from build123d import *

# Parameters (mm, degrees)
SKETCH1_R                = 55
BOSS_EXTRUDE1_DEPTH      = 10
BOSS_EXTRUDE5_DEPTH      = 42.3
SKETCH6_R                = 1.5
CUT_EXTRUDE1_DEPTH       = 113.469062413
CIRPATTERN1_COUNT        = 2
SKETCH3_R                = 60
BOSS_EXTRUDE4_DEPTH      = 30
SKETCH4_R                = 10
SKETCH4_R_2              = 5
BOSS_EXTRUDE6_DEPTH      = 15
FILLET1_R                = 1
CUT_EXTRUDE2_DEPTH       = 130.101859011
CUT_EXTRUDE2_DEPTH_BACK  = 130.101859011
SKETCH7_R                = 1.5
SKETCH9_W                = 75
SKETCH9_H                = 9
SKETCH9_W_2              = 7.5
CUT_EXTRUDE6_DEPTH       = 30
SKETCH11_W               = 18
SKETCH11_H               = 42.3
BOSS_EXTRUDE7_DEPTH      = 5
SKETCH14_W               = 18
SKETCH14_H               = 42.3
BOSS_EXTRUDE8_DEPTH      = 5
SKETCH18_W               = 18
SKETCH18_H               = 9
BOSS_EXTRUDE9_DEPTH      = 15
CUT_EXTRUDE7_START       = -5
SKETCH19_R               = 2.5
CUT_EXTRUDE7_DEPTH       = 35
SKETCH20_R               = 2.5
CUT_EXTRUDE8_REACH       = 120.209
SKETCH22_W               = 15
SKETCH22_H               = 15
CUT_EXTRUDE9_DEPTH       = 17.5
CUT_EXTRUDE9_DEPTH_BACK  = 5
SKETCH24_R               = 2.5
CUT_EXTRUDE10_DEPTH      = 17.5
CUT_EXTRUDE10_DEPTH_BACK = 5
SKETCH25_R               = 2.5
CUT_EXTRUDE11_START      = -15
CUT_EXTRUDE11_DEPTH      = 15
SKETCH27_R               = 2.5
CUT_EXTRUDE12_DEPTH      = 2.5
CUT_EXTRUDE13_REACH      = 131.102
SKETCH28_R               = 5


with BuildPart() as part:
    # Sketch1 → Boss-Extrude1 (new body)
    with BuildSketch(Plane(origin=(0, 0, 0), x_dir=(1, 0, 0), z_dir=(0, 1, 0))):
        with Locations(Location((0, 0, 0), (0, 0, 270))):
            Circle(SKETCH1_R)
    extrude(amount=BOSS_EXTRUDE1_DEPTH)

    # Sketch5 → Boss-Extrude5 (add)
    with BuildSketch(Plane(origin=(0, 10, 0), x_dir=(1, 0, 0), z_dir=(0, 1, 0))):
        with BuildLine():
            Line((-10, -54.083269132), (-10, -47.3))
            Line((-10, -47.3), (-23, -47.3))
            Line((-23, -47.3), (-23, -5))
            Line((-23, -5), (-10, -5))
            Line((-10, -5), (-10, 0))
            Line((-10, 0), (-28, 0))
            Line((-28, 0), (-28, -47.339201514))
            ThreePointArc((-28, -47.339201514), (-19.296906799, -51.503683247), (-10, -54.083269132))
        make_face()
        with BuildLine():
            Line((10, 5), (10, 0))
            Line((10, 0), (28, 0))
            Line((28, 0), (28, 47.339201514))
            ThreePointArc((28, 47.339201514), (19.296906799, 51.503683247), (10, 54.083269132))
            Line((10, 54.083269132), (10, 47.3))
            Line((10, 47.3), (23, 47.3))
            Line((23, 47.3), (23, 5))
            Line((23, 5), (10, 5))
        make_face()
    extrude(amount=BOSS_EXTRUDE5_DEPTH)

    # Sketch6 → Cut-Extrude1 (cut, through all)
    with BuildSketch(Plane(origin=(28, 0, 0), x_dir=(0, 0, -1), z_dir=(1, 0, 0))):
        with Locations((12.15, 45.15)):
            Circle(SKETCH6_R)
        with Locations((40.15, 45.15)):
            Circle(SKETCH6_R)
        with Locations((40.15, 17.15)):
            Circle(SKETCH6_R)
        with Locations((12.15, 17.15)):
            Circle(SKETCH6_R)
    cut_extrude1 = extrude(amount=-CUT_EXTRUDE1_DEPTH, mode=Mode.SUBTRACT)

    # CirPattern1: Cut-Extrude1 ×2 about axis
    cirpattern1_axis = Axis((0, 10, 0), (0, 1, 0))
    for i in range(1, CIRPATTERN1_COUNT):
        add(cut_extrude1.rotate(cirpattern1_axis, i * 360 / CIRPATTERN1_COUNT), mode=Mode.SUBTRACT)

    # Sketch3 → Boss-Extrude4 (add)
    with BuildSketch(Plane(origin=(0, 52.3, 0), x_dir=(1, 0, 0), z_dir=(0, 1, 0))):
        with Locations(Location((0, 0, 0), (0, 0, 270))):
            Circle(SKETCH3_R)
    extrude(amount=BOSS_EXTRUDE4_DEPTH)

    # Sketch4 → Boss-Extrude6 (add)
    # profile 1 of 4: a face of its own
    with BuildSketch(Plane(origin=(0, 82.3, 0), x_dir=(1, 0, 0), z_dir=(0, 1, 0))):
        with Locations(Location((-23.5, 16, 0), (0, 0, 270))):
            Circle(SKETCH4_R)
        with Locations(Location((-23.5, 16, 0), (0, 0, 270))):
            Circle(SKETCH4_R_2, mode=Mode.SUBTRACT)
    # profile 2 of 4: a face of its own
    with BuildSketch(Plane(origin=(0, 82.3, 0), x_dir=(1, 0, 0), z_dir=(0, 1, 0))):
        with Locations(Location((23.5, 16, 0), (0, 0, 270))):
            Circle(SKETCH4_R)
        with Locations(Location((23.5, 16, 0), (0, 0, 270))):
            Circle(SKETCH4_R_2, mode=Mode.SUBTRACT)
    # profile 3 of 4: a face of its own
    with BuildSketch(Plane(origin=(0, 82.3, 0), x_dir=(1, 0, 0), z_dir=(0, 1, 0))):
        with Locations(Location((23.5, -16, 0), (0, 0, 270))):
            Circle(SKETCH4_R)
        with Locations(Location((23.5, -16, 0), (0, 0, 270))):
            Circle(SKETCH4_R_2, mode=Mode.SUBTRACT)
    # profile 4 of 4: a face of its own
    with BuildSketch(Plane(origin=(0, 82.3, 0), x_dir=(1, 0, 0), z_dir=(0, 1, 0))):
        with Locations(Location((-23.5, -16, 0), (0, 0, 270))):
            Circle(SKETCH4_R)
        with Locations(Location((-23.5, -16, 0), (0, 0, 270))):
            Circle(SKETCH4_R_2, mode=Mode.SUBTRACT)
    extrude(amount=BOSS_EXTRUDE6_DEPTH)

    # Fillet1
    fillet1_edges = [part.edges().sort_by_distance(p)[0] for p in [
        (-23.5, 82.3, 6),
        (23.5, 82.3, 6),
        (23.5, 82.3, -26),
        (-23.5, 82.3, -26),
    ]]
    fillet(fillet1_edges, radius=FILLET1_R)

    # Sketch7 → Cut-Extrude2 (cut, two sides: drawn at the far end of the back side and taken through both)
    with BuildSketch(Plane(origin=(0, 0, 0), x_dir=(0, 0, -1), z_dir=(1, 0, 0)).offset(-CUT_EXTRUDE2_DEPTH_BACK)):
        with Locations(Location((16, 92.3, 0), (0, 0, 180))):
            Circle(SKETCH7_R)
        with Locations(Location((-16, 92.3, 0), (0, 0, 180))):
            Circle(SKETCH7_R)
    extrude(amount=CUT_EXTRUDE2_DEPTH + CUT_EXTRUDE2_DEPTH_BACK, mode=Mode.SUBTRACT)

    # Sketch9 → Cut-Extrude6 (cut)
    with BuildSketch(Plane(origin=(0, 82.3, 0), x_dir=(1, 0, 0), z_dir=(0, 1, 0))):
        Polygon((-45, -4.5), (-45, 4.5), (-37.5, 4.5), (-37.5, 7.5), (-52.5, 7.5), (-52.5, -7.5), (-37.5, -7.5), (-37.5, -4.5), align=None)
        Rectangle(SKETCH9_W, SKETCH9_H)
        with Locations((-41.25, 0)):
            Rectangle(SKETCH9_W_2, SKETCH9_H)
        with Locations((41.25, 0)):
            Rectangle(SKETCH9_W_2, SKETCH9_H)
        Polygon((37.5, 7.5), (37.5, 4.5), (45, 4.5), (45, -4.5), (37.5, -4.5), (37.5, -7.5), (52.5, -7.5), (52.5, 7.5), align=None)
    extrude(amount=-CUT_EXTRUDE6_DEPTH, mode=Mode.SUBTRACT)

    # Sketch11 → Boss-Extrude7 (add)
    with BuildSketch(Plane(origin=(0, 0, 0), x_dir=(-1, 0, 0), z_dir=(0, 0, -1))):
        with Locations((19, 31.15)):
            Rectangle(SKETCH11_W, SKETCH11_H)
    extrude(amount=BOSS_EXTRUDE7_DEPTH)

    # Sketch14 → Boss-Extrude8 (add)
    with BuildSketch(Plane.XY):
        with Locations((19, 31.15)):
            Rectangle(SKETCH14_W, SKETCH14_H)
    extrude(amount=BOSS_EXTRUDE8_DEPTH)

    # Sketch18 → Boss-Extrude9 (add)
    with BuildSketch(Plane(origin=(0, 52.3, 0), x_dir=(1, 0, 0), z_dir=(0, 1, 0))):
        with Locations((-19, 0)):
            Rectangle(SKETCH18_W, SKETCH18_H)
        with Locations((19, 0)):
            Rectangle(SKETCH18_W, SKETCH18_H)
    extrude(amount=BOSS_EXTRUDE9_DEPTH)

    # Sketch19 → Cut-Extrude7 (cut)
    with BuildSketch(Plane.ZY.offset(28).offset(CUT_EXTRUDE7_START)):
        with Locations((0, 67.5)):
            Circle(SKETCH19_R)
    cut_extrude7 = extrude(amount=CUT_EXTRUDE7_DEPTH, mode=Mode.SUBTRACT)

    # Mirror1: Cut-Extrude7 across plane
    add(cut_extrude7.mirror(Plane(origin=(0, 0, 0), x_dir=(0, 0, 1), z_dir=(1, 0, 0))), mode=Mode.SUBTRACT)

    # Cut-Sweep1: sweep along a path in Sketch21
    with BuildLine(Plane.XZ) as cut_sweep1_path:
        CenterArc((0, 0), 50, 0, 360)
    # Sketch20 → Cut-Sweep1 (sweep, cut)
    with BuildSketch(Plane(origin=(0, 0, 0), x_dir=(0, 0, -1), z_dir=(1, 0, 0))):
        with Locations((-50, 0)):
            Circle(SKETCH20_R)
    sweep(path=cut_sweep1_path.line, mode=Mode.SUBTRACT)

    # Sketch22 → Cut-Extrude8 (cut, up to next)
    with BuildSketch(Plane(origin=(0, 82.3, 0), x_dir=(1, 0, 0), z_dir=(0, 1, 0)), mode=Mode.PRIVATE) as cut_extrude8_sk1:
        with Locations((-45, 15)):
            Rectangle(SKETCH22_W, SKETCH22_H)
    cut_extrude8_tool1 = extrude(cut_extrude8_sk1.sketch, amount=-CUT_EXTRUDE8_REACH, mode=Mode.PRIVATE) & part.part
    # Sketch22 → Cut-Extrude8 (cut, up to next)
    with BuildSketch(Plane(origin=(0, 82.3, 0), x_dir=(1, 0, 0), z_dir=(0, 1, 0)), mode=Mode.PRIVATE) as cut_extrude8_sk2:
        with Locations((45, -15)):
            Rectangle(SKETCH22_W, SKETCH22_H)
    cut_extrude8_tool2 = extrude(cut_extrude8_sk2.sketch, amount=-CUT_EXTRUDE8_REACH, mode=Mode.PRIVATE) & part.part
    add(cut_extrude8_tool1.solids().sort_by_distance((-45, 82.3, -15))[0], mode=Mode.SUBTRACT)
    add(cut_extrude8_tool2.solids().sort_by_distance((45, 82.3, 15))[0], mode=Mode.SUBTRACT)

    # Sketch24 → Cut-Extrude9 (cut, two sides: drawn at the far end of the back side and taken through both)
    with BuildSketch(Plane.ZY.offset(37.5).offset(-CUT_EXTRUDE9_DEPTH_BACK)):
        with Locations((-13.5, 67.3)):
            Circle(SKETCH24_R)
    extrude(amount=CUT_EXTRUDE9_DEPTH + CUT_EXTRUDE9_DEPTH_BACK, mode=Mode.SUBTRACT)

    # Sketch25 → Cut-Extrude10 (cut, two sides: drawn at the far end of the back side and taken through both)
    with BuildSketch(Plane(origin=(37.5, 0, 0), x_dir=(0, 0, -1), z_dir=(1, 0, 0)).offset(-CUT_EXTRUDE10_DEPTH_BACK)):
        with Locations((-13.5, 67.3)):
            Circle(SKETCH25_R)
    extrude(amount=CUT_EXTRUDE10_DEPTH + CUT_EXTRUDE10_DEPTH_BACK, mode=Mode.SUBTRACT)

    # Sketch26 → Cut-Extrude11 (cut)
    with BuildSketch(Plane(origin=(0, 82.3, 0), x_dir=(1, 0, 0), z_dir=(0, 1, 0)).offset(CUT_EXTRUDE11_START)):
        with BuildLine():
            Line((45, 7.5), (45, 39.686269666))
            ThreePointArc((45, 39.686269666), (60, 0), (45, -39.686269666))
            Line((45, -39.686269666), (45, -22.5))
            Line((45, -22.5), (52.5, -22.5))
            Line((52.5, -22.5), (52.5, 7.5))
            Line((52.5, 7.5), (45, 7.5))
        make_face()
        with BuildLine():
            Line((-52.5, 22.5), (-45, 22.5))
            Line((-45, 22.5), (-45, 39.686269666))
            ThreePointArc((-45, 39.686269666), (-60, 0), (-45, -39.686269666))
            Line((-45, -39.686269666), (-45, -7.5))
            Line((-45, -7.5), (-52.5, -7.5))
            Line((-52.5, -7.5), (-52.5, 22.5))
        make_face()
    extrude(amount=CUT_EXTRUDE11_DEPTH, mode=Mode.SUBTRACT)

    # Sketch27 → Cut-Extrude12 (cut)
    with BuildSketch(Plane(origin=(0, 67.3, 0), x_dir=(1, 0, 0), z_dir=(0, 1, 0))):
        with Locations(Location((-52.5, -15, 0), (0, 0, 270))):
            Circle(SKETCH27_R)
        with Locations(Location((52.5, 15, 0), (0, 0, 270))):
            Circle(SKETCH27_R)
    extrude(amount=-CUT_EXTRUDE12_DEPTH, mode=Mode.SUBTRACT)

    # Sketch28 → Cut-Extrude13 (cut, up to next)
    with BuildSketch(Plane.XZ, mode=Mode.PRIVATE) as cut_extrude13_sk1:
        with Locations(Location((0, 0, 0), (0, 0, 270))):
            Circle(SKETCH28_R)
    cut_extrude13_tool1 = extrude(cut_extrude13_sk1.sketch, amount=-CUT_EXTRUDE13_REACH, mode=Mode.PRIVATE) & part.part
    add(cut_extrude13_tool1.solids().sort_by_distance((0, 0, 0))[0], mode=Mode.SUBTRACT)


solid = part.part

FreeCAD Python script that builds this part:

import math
import FreeCAD as App
import Part
import Sketcher
from FreeCAD import Vector
Q = App.Units.Quantity


def edges_at(feature, points):
    """Names of the edges that pass closest to the given points."""
    edges = feature.Shape.Edges
    near = lambda p: min(range(len(edges)), key=lambda i: edges[i].distToShape(Part.Vertex(*p))[0])
    return sorted({f"Edge{near(p) + 1}" for p in points})

doc = App.newDocument("Part")
body = doc.addObject("PartDesign::Body", "Body")

# Sketch on XZ plane
sketch1 = body.newObject("Sketcher::SketchObject", "Sketch")
sketch1.AttachmentSupport = (doc.getObject("XZ_Plane"), [""])
sketch1.MapMode = "FlatFace"
sketch1.addGeometry(Part.Circle(Vector(0, 0, 0), Vector(0, 0, 1), 55), False)
sketch1.addConstraint(Sketcher.Constraint("Coincident", 0, 3, -1, 1))
sketch1.addConstraint(Sketcher.Constraint("Diameter", 0, Q("110 mm")))
pad1 = body.newObject("PartDesign::Pad", "Pad")
pad1.Profile = sketch1
pad1.Length = 10
pad1.Reversed = True

# Sketch on XZ plane
sketch2 = body.newObject("Sketcher::SketchObject", "Sketch001")
sketch2.AttachmentSupport = (doc.getObject("XZ_Plane"), [""])
sketch2.MapMode = "FlatFace"
sketch2.AttachmentOffset = App.Placement(Vector(0, 0, -10), App.Rotation())
sketch2.addGeometry(Part.LineSegment(Vector(-10, 54.083269, 0), Vector(-10, 47.3, 0)), False)
sketch2.addGeometry(Part.LineSegment(Vector(-10, 47.3, 0), Vector(-23, 47.3, 0)), False)
sketch2.addGeometry(Part.LineSegment(Vector(-23, 47.3, 0), Vector(-23, 5, 0)), False)
sketch2.addGeometry(Part.LineSegment(Vector(-23, 5, 0), Vector(-10, 5, 0)), False)
sketch2.addGeometry(Part.LineSegment(Vector(-10, 5, 0), Vector(-10, 0, 0)), False)
sketch2.addGeometry(Part.LineSegment(Vector(-10, 0, 0), Vector(-28, 0, 0)), False)
sketch2.addGeometry(Part.LineSegment(Vector(-28, 0, 0), Vector(-28, 47.339202, 0)), False)
sketch2.addGeometry(Part.ArcOfCircle(Part.Circle(Vector(0, 0, 0), Vector(0, 0, 1), 55), math.radians(100.475682), math.radians(120.603295)), False)
sketch2.addGeometry(Part.LineSegment(Vector(10, -5, 0), Vector(10, 0, 0)), False)
sketch2.addGeometry(Part.LineSegment(Vector(10, 0, 0), Vector(28, 0, 0)), False)
sketch2.addGeometry(Part.LineSegment(Vector(28, 0, 0), Vector(28, -47.339202, 0)), False)
sketch2.addGeometry(Part.ArcOfCircle(Part.Circle(Vector(0, 0, 0), Vector(0, 0, 1), 55), math.radians(-79.524318), math.radians(-59.396705)), False)
sketch2.addGeometry(Part.LineSegment(Vector(10, -54.083269, 0), Vector(10, -47.3, 0)), False)
sketch2.addGeometry(Part.LineSegment(Vector(10, -47.3, 0), Vector(23, -47.3, 0)), False)
sketch2.addGeometry(Part.LineSegment(Vector(23, -47.3, 0), Vector(23, -5, 0)), False)
sketch2.addGeometry(Part.LineSegment(Vector(23, -5, 0), Vector(10, -5, 0)), False)
sketch2.addConstraint(Sketcher.Constraint("Coincident", 0, 2, 1, 1))
sketch2.addConstraint(Sketcher.Constraint("Coincident", 1, 2, 2, 1))
sketch2.addConstraint(Sketcher.Constraint("Coincident", 2, 2, 3, 1))
sketch2.addConstraint(Sketcher.Constraint("Coincident", 3, 2, 4, 1))
sketch2.addConstraint(Sketcher.Constraint("Coincident", 4, 2, 5, 1))
sketch2.addConstraint(Sketcher.Constraint("Coincident", 5, 2, 6, 1))
sketch2.addConstraint(Sketcher.Constraint("Coincident", 6, 2, 7, 2))
sketch2.addConstraint(Sketcher.Constraint("Coincident", 7, 1, 0, 1))
sketch2.addConstraint(Sketcher.Constraint("Coincident", 8, 2, 9, 1))
sketch2.addConstraint(Sketcher.Constraint("Coincident", 9, 2, 10, 1))
sketch2.addConstraint(Sketcher.Constraint("Coincident", 10, 2, 11, 2))
sketch2.addConstraint(Sketcher.Constraint("Coincident", 11, 1, 12, 1))
sketch2.addConstraint(Sketcher.Constraint("Coincident", 12, 2, 13, 1))
sketch2.addConstraint(Sketcher.Constraint("Coincident", 13, 2, 14, 1))
sketch2.addConstraint(Sketcher.Constraint("Coincident", 14, 2, 15, 1))
sketch2.addConstraint(Sketcher.Constraint("Coincident", 15, 2, 8, 1))
sketch2.addConstraint(Sketcher.Constraint("Vertical", 0))
sketch2.addConstraint(Sketcher.Constraint("Horizontal", 1))
sketch2.addConstraint(Sketcher.Constraint("Vertical", 2))
sketch2.addConstraint(Sketcher.Constraint("Horizontal", 3))
sketch2.addConstraint(Sketcher.Constraint("Vertical", 4))
sketch2.addConstraint(Sketcher.Constraint("Horizontal", 5))
sketch2.addConstraint(Sketcher.Constraint("Vertical", 6))
sketch2.addConstraint(Sketcher.Constraint("Vertical", 8))
sketch2.addConstraint(Sketcher.Constraint("Horizontal", 9))
sketch2.addConstraint(Sketcher.Constraint("Vertical", 10))
sketch2.addConstraint(Sketcher.Constraint("Vertical", 12))
sketch2.addConstraint(Sketcher.Constraint("Horizontal", 13))
sketch2.addConstraint(Sketcher.Constraint("Vertical", 14))
sketch2.addConstraint(Sketcher.Constraint("Horizontal", 15))
sketch2.addConstraint(Sketcher.Constraint("Coincident", 7, 3, -1, 1))
sketch2.addConstraint(Sketcher.Constraint("Coincident", 11, 3, -1, 1))
sketch2.addConstraint(Sketcher.Constraint("Equal", 7, 11))
sketch2.addConstraint(Sketcher.Constraint("Symmetric", 4, 2, 8, 2, -1, 1))
sketch2.addConstraint(Sketcher.Constraint("Symmetric", 0, 2, 12, 2, -1, 1))
sketch2.addConstraint(Sketcher.Constraint("Symmetric", 2, 2, 14, 2, -1, 1))
sketch2.addConstraint(Sketcher.Constraint("Symmetric", 5, 2, 9, 2, -2))
sketch2.addConstraint(Sketcher.Constraint("Vertical", 0, 2, 3, 2))
sketch2.addConstraint(Sketcher.Constraint("Radius", 7, Q("55 mm")))
sketch2.addConstraint(Sketcher.Constraint("DistanceX", 1, 2, 1, 1, Q("13 mm")))
sketch2.addConstraint(Sketcher.Constraint("DistanceX", 5, 2, 5, 1, Q("18 mm")))
sketch2.addConstraint(Sketcher.Constraint("DistanceY", 4, 2, 4, 1, Q("5 mm")))
sketch2.addConstraint(Sketcher.Constraint("DistanceY", 2, 2, 2, 1, Q("42.3 mm")))
sketch2.addConstraint(Sketcher.Constraint("DistanceX", 0, 2, -1, 1, Q("10 mm")))
pad2 = body.newObject("PartDesign::Pad", "Pad001")
pad2.Profile = sketch2
pad2.Length = 42.3
pad2.Reversed = True

# Sketch on YZ plane
sketch3 = body.newObject("Sketcher::SketchObject", "Sketch002")
sketch3.AttachmentSupport = (doc.getObject("YZ_Plane"), [""])
sketch3.MapMode = "FlatFace"
sketch3.AttachmentOffset = App.Placement(Vector(0, 0, 28), App.Rotation())
sketch3.addGeometry(Part.Circle(Vector(45.15, -12.15, 0), Vector(0, 0, 1), 1.5), False)
sketch3.addGeometry(Part.Circle(Vector(45.15, -40.15, 0), Vector(0, 0, 1), 1.5), False)
sketch3.addGeometry(Part.Circle(Vector(17.15, -40.15, 0), Vector(0, 0, 1), 1.5), False)
sketch3.addGeometry(Part.Circle(Vector(17.15, -12.15, 0), Vector(0, 0, 1), 1.5), False)
sketch3.addConstraint(Sketcher.Constraint("Equal", 0, 1))
sketch3.addConstraint(Sketcher.Constraint("Equal", 1, 2))
sketch3.addConstraint(Sketcher.Constraint("Equal", 2, 3))
sketch3.addConstraint(Sketcher.Constraint("Horizontal", 1, 3, 2, 3))
sketch3.addConstraint(Sketcher.Constraint("Horizontal", 0, 3, 3, 3))
sketch3.addConstraint(Sketcher.Constraint("Vertical", 0, 3, 1, 3))
sketch3.addConstraint(Sketcher.Constraint("Vertical", 2, 3, 3, 3))
sketch3.addConstraint(Sketcher.Constraint("Diameter", 0, Q("3 mm")))
sketch3.addConstraint(Sketcher.Constraint("DistanceY", 1, 3, 0, 3, Q("28 mm")))
sketch3.addConstraint(Sketcher.Constraint("DistanceX", 2, 3, 1, 3, Q("28 mm")))
sketch3.addConstraint(Sketcher.Constraint("DistanceX", -1, 1, 0, 3, Q("45.15 mm")))
sketch3.addConstraint(Sketcher.Constraint("DistanceY", 0, 3, -1, 1, Q("12.15 mm")))
pocket1 = body.newObject("PartDesign::Pocket", "Pocket")
pocket1.Profile = sketch3
pocket1.Type = "ThroughAll"
doc.recompute()

polarpattern = body.newObject("PartDesign::PolarPattern", "PolarPattern")
polarpattern.Originals = [pocket1]
polarpattern.Axis = (doc.getObject("Y_Axis"), [""])
polarpattern.Angle = 360
polarpattern.Occurrences = 2
body.Tip = polarpattern

# Sketch on XZ plane
sketch4 = body.newObject("Sketcher::SketchObject", "Sketch003")
sketch4.AttachmentSupport = (doc.getObject("XZ_Plane"), [""])
sketch4.MapMode = "FlatFace"
sketch4.AttachmentOffset = App.Placement(Vector(0, 0, -52.3), App.Rotation())
sketch4.addGeometry(Part.Circle(Vector(0, 0, 0), Vector(0, 0, 1), 60), False)
sketch4.addConstraint(Sketcher.Constraint("Coincident", 0, 3, -1, 1))
sketch4.addConstraint(Sketcher.Constraint("Diameter", 0, Q("120 mm")))
pad3 = body.newObject("PartDesign::Pad", "Pad002")
pad3.Profile = sketch4
pad3.Length = 30
pad3.Reversed = True

# Sketch on XZ plane
sketch5 = body.newObject("Sketcher::SketchObject", "Sketch004")
sketch5.AttachmentSupport = (doc.getObject("XZ_Plane"), [""])
sketch5.MapMode = "FlatFace"
sketch5.AttachmentOffset = App.Placement(Vector(0, 0, -82.3), App.Rotation())
sketch5.addGeometry(Part.Circle(Vector(-23.5, -16, 0), Vector(0, 0, 1), 10), False)
sketch5.addGeometry(Part.Circle(Vector(-23.5, -16, 0), Vector(0, 0, 1), 5), False)
sketch5.addGeometry(Part.Circle(Vector(23.5, -16, 0), Vector(0, 0, 1), 10), False)
sketch5.addGeometry(Part.Circle(Vector(23.5, -16, 0), Vector(0, 0, 1), 5), False)
sketch5.addGeometry(Part.Circle(Vector(23.5, 16, 0), Vector(0, 0, 1), 10), False)
sketch5.addGeometry(Part.Circle(Vector(23.5, 16, 0), Vector(0, 0, 1), 5), False)
sketch5.addGeometry(Part.Circle(Vector(-23.5, 16, 0), Vector(0, 0, 1), 10), False)
sketch5.addGeometry(Part.Circle(Vector(-23.5, 16, 0), Vector(0, 0, 1), 5), False)
sketch5.addConstraint(Sketcher.Constraint("Coincident", 1, 3, 0, 3))
sketch5.addConstraint(Sketcher.Constraint("Coincident", 3, 3, 2, 3))
sketch5.addConstraint(Sketcher.Constraint("Coincident", 5, 3, 4, 3))
sketch5.addConstraint(Sketcher.Constraint("Coincident", 7, 3, 6, 3))
sketch5.addConstraint(Sketcher.Constraint("Equal", 0, 2))
sketch5.addConstraint(Sketcher.Constraint("Equal", 1, 3))
sketch5.addConstraint(Sketcher.Constraint("Equal", 2, 4))
sketch5.addConstraint(Sketcher.Constraint("Equal", 3, 5))
sketch5.addConstraint(Sketcher.Constraint("Equal", 4, 6))
sketch5.addConstraint(Sketcher.Constraint("Equal", 5, 7))
sketch5.addConstraint(Sketcher.Constraint("Symmetric", 0, 3, 4, 3, -1, 1))
sketch5.addConstraint(Sketcher.Constraint("Symmetric", 2, 3, 6, 3, -1, 1))
sketch5.addConstraint(Sketcher.Constraint("Symmetric", 0, 3, 2, 3, -2))
sketch5.addConstraint(Sketcher.Constraint("Diameter", 0, Q("20 mm")))
sketch5.addConstraint(Sketcher.Constraint("Diameter", 1, Q("10 mm")))
sketch5.addConstraint(Sketcher.Constraint("DistanceY", 0, 3, -1, 1, Q("16 mm")))
sketch5.addConstraint(Sketcher.Constraint("DistanceX", 0, 3, 2, 3, Q("47 mm")))
pad4 = body.newObject("PartDesign::Pad", "Pad003")
pad4.Profile = sketch5
pad4.Length = 15
pad4.Reversed = True
doc.recompute()

fillet = body.newObject("PartDesign::Fillet", "Fillet")
fillet.Base = (pad4, edges_at(pad4, [
    (-23.5, 82.3, 6),
    (23.5, 82.3, 6),
    (23.5, 82.3, -26),
    (-23.5, 82.3, -26),
]))
fillet.Radius = 1

# Sketch on YZ plane
sketch6 = body.newObject("Sketcher::SketchObject", "Sketch005")
sketch6.AttachmentSupport = (doc.getObject("YZ_Plane"), [""])
sketch6.MapMode = "FlatFace"
sketch6.addGeometry(Part.Circle(Vector(92.3, -16, 0), Vector(0, 0, 1), 1.5), False)
sketch6.addGeometry(Part.Circle(Vector(92.3, 16, 0), Vector(0, 0, 1), 1.5), False)
sketch6.addConstraint(Sketcher.Constraint("Equal", 0, 1))
sketch6.addConstraint(Sketcher.Constraint("Symmetric", 0, 3, 1, 3, -1))
sketch6.addConstraint(Sketcher.Constraint("Diameter", 0, Q("3 mm")))
sketch6.addConstraint(Sketcher.Constraint("DistanceY", 0, 3, -1, 1, Q("16 mm")))
sketch6.addConstraint(Sketcher.Constraint("DistanceX", -1, 1, 0, 3, Q("92.3 mm")))
pocket2 = body.newObject("PartDesign::Pocket", "Pocket001")
pocket2.Profile = sketch6
pocket2.Type = "ThroughAll"
pocket2.Midplane = True

# Sketch on XZ plane
sketch7 = body.newObject("Sketcher::SketchObject", "Sketch006")
sketch7.AttachmentSupport = (doc.getObject("XZ_Plane"), [""])
sketch7.MapMode = "FlatFace"
sketch7.AttachmentOffset = App.Placement(Vector(0, 0, -82.3), App.Rotation())
sketch7.addGeometry(Part.LineSegment(Vector(-37.5, -4.5, 0), Vector(-37.5, -7.5, 0)), False)
sketch7.addGeometry(Part.LineSegment(Vector(-37.5, -7.5, 0), Vector(-52.5, -7.5, 0)), False)
sketch7.addGeometry(Part.LineSegment(Vector(-52.5, -7.5, 0), Vector(-52.5, 7.5, 0)), False)
sketch7.addGeometry(Part.LineSegment(Vector(-52.5, 7.5, 0), Vector(-37.5, 7.5, 0)), False)
sketch7.addGeometry(Part.LineSegment(Vector(-37.5, 7.5, 0), Vector(-37.5, 4.5, 0)), False)
sketch7.addGeometry(Part.LineSegment(Vector(-37.5, 4.5, 0), Vector(37.5, 4.5, 0)), False)
sketch7.addGeometry(Part.LineSegment(Vector(37.5, 4.5, 0), Vector(37.5, 7.5, 0)), False)
sketch7.addGeometry(Part.LineSegment(Vector(37.5, 7.5, 0), Vector(52.5, 7.5, 0)), False)
sketch7.addGeometry(Part.LineSegment(Vector(52.5, 7.5, 0), Vector(52.5, -7.5, 0)), False)
sketch7.addGeometry(Part.LineSegment(Vector(52.5, -7.5, 0), Vector(37.5, -7.5, 0)), False)
sketch7.addGeometry(Part.LineSegment(Vector(37.5, -7.5, 0), Vector(37.5, -4.5, 0)), False)
sketch7.addGeometry(Part.LineSegment(Vector(37.5, -4.5, 0), Vector(-37.5, -4.5, 0)), False)
sketch7.addConstraint(Sketcher.Constraint("Coincident", 0, 2, 1, 1))
sketch7.addConstraint(Sketcher.Constraint("Coincident", 1, 2, 2, 1))
sketch7.addConstraint(Sketcher.Constraint("Coincident", 2, 2, 3, 1))
sketch7.addConstraint(Sketcher.Constraint("Coincident", 3, 2, 4, 1))
sketch7.addConstraint(Sketcher.Constraint("Coincident", 4, 2, 5, 1))
sketch7.addConstraint(Sketcher.Constraint("Coincident", 5, 2, 6, 1))
sketch7.addConstraint(Sketcher.Constraint("Coincident", 6, 2, 7, 1))
sketch7.addConstraint(Sketcher.Constraint("Coincident", 7, 2, 8, 1))
sketch7.addConstraint(Sketcher.Constraint("Coincident", 8, 2, 9, 1))
sketch7.addConstraint(Sketcher.Constraint("Coincident", 9, 2, 10, 1))
sketch7.addConstraint(Sketcher.Constraint("Coincident", 10, 2, 11, 1))
sketch7.addConstraint(Sketcher.Constraint("Coincident", 11, 2, 0, 1))
sketch7.addConstraint(Sketcher.Constraint("Vertical", 0))
sketch7.addConstraint(Sketcher.Constraint("Horizontal", 1))
sketch7.addConstraint(Sketcher.Constraint("Vertical", 2))
sketch7.addConstraint(Sketcher.Constraint("Horizontal", 3))
sketch7.addConstraint(Sketcher.Constraint("Vertical", 4))
sketch7.addConstraint(Sketcher.Constraint("Horizontal", 5))
sketch7.addConstraint(Sketcher.Constraint("Vertical", 6))
sketch7.addConstraint(Sketcher.Constraint("Horizontal", 7))
sketch7.addConstraint(Sketcher.Constraint("Vertical", 8))
sketch7.addConstraint(Sketcher.Constraint("Horizontal", 9))
sketch7.addConstraint(Sketcher.Constraint("Vertical", 10))
sketch7.addConstraint(Sketcher.Constraint("Horizontal", 11))
sketch7.addConstraint(Sketcher.Constraint("Symmetric", 0, 2, 6, 2, -1, 1))
sketch7.addConstraint(Sketcher.Constraint("Symmetric", 2, 2, 8, 2, -1, 1))
sketch7.addConstraint(Sketcher.Constraint("Symmetric", 4, 2, 10, 2, -1, 1))
sketch7.addConstraint(Sketcher.Constraint("Symmetric", 3, 2, 6, 2, -2))
sketch7.addConstraint(Sketcher.Constraint("Equal", 9, 2))
sketch7.addConstraint(Sketcher.Constraint("DistanceX", 1, 2, 1, 1, Q("15 mm")))
sketch7.addConstraint(Sketcher.Constraint("DistanceX", 5, 1, 5, 2, Q("75 mm")))
sketch7.addConstraint(Sketcher.Constraint("DistanceY", 0, 2, 0, 1, Q("3 mm")))
pocket3 = body.newObject("PartDesign::Pocket", "Pocket002")
pocket3.Profile = sketch7
pocket3.Length = 30
pocket3.Reversed = True

# Sketch on XY plane
sketch8 = body.newObject("Sketcher::SketchObject", "Sketch007")
sketch8.AttachmentSupport = (doc.getObject("XY_Plane"), [""])
sketch8.MapMode = "FlatFace"
sketch8.addGeometry(Part.LineSegment(Vector(-10, 52.3, 0), Vector(-10, 10, 0)), False)
sketch8.addGeometry(Part.LineSegment(Vector(-10, 10, 0), Vector(-28, 10, 0)), False)
sketch8.addGeometry(Part.LineSegment(Vector(-28, 10, 0), Vector(-28, 52.3, 0)), False)
sketch8.addGeometry(Part.LineSegment(Vector(-28, 52.3, 0), Vector(-10, 52.3, 0)), False)
sketch8.addConstraint(Sketcher.Constraint("Coincident", 0, 2, 1, 1))
sketch8.addConstraint(Sketcher.Constraint("Coincident", 1, 2, 2, 1))
sketch8.addConstraint(Sketcher.Constraint("Coincident", 2, 2, 3, 1))
sketch8.addConstraint(Sketcher.Constraint("Coincident", 3, 2, 0, 1))
sketch8.addConstraint(Sketcher.Constraint("Vertical", 0))
sketch8.addConstraint(Sketcher.Constraint("Horizontal", 1))
sketch8.addConstraint(Sketcher.Constraint("Vertical", 2))
sketch8.addConstraint(Sketcher.Constraint("Horizontal", 3))
sketch8.addConstraint(Sketcher.Constraint("DistanceX", 1, 2, 1, 1, Q("18 mm")))
sketch8.addConstraint(Sketcher.Constraint("DistanceY", 0, 2, 0, 1, Q("42.3 mm")))
sketch8.addConstraint(Sketcher.Constraint("DistanceX", 0, 2, -1, 1, Q("10 mm")))
sketch8.addConstraint(Sketcher.Constraint("DistanceY", -1, 1, 0, 2, Q("10 mm")))
pad5 = body.newObject("PartDesign::Pad", "Pad004")
pad5.Profile = sketch8
pad5.Length = 5
pad5.Reversed = True

# Sketch on XY plane
sketch9 = body.newObject("Sketcher::SketchObject", "Sketch008")
sketch9.AttachmentSupport = (doc.getObject("XY_Plane"), [""])
sketch9.MapMode = "FlatFace"
sketch9.addGeometry(Part.LineSegment(Vector(10, 52.3, 0), Vector(10, 10, 0)), False)
sketch9.addGeometry(Part.LineSegment(Vector(10, 10, 0), Vector(28, 10, 0)), False)
sketch9.addGeometry(Part.LineSegment(Vector(28, 10, 0), Vector(28, 52.3, 0)), False)
sketch9.addGeometry(Part.LineSegment(Vector(28, 52.3, 0), Vector(10, 52.3, 0)), False)
sketch9.addConstraint(Sketcher.Constraint("Coincident", 0, 2, 1, 1))
sketch9.addConstraint(Sketcher.Constraint("Coincident", 1, 2, 2, 1))
sketch9.addConstraint(Sketcher.Constraint("Coincident", 2, 2, 3, 1))
sketch9.addConstraint(Sketcher.Constraint("Coincident", 3, 2, 0, 1))
sketch9.addConstraint(Sketcher.Constraint("Vertical", 0))
sketch9.addConstraint(Sketcher.Constraint("Horizontal", 1))
sketch9.addConstraint(Sketcher.Constraint("Vertical", 2))
sketch9.addConstraint(Sketcher.Constraint("Horizontal", 3))
sketch9.addConstraint(Sketcher.Constraint("DistanceX", 1, 1, 1, 2, Q("18 mm")))
sketch9.addConstraint(Sketcher.Constraint("DistanceY", 0, 2, 0, 1, Q("42.3 mm")))
sketch9.addConstraint(Sketcher.Constraint("DistanceX", -1, 1, 0, 2, Q("10 mm")))
sketch9.addConstraint(Sketcher.Constraint("DistanceY", -1, 1, 0, 2, Q("10 mm")))
pad6 = body.newObject("PartDesign::Pad", "Pad005")
pad6.Profile = sketch9
pad6.Length = 5

# Sketch on XZ plane
sketch10 = body.newObject("Sketcher::SketchObject", "Sketch009")
sketch10.AttachmentSupport = (doc.getObject("XZ_Plane"), [""])
sketch10.MapMode = "FlatFace"
sketch10.AttachmentOffset = App.Placement(Vector(0, 0, -52.3), App.Rotation())
sketch10.addGeometry(Part.LineSegment(Vector(-28, -4.5, 0), Vector(-28, 4.5, 0)), False)
sketch10.addGeometry(Part.LineSegment(Vector(-28, 4.5, 0), Vector(-10, 4.5, 0)), False)
sketch10.addGeometry(Part.LineSegment(Vector(-10, 4.5, 0), Vector(-10, -4.5, 0)), False)
sketch10.addGeometry(Part.LineSegment(Vector(-10, -4.5, 0), Vector(-28, -4.5, 0)), False)
sketch10.addGeometry(Part.LineSegment(Vector(10, -4.5, 0), Vector(10, 4.5, 0)), False)
sketch10.addGeometry(Part.LineSegment(Vector(10, 4.5, 0), Vector(28, 4.5, 0)), False)
sketch10.addGeometry(Part.LineSegment(Vector(28, 4.5, 0), Vector(28, -4.5, 0)), False)
sketch10.addGeometry(Part.LineSegment(Vector(28, -4.5, 0), Vector(10, -4.5, 0)), False)
sketch10.addConstraint(Sketcher.Constraint("Coincident", 0, 2, 1, 1))
sketch10.addConstraint(Sketcher.Constraint("Coincident", 1, 2, 2, 1))
sketch10.addConstraint(Sketcher.Constraint("Coincident", 2, 2, 3, 1))
sketch10.addConstraint(Sketcher.Constraint("Coincident", 3, 2, 0, 1))
sketch10.addConstraint(Sketcher.Constraint("Coincident", 4, 2, 5, 1))
sketch10.addConstraint(Sketcher.Constraint("Coincident", 5, 2, 6, 1))
sketch10.addConstraint(Sketcher.Constraint("Coincident", 6, 2, 7, 1))
sketch10.addConstraint(Sketcher.Constraint("Coincident", 7, 2, 4, 1))
sketch10.addConstraint(Sketcher.Constraint("Vertical", 0))
sketch10.addConstraint(Sketcher.Constraint("Horizontal", 1))
sketch10.addConstraint(Sketcher.Constraint("Vertical", 2))
sketch10.addConstraint(Sketcher.Constraint("Horizontal", 3))
sketch10.addConstraint(Sketcher.Constraint("Vertical", 4))
sketch10.addConstraint(Sketcher.Constraint("Horizontal", 5))
sketch10.addConstraint(Sketcher.Constraint("Vertical", 6))
sketch10.addConstraint(Sketcher.Constraint("Horizontal", 7))
sketch10.addConstraint(Sketcher.Constraint("Symmetric", 2, 2, 4, 2, -1, 1))
sketch10.addConstraint(Sketcher.Constraint("Symmetric", 0, 2, 6, 2, -1, 1))
sketch10.addConstraint(Sketcher.Constraint("Horizontal", 1, 2, 4, 2))
sketch10.addConstraint(Sketcher.Constraint("DistanceX", 1, 1, 1, 2, Q("18 mm")))
sketch10.addConstraint(Sketcher.Constraint("DistanceY", 0, 1, 0, 2, Q("9 mm")))
sketch10.addConstraint(Sketcher.Constraint("DistanceX", 0, 2, -1, 1, Q("28 mm")))
pad7 = body.newObject("PartDesign::Pad", "Pad006")
pad7.Profile = sketch10
pad7.Length = 15
pad7.Reversed = True

# Sketch on YZ plane
sketch11 = body.newObject("Sketcher::SketchObject", "Sketch010")
sketch11.AttachmentSupport = (doc.getObject("YZ_Plane"), [""])
sketch11.MapMode = "FlatFace"
sketch11.AttachmentOffset = App.Placement(Vector(0, 0, -23), App.Rotation())
sketch11.addGeometry(Part.Circle(Vector(67.5, 0, 0), Vector(0, 0, 1), 2.5), False)
sketch11.addConstraint(Sketcher.Constraint("PointOnObject", 0, 3, -1))
sketch11.addConstraint(Sketcher.Constraint("Diameter", 0, Q("5 mm")))
sketch11.addConstraint(Sketcher.Constraint("DistanceX", -1, 1, 0, 3, Q("67.5 mm")))
pocket4 = body.newObject("PartDesign::Pocket", "Pocket003")
pocket4.Profile = sketch11
pocket4.Length = 35
doc.recompute()

mirrored = body.newObject("PartDesign::Mirrored", "Mirrored")
mirrored.Originals = [pocket4]
mirrored.MirrorPlane = (doc.getObject("YZ_Plane"), [""])
body.Tip = mirrored

# Sketch on YZ plane
sketch12 = body.newObject("Sketcher::SketchObject", "Sketch011")
sketch12.AttachmentSupport = (doc.getObject("YZ_Plane"), [""])
sketch12.MapMode = "FlatFace"
sketch12.addGeometry(Part.Circle(Vector(0, 50, 0), Vector(0, 0, 1), 2.5), False)
sketch12.addConstraint(Sketcher.Constraint("PointOnObject", 0, 3, -2))
sketch12.addConstraint(Sketcher.Constraint("Diameter", 0, Q("5 mm")))
sketch12.addConstraint(Sketcher.Constraint("DistanceY", -1, 1, 0, 3, Q("50 mm")))

# Sketch on XZ plane
sketch13 = body.newObject("Sketcher::SketchObject", "Sketch012")
sketch13.AttachmentSupport = (doc.getObject("XZ_Plane"), [""])
sketch13.MapMode = "FlatFace"
sketch13.addGeometry(Part.Circle(Vector(0, 0, 0), Vector(0, 0, 1), 50), False)
sketch13.addConstraint(Sketcher.Constraint("Coincident", 0, 3, -1, 1))
sketch13.addConstraint(Sketcher.Constraint("Diameter", 0, Q("100 mm")))
doc.recompute()

subtractivepipe = body.newObject("PartDesign::SubtractivePipe", "SubtractivePipe")
subtractivepipe.Profile = sketch12
subtractivepipe.Spine = (sketch13, ["Edge1"])

# Sketch on XZ plane
sketch14 = body.newObject("Sketcher::SketchObject", "Sketch013")
sketch14.AttachmentSupport = (doc.getObject("XZ_Plane"), [""])
sketch14.MapMode = "FlatFace"
sketch14.AttachmentOffset = App.Placement(Vector(0, 0, -82.3), App.Rotation())
sketch14.addGeometry(Part.LineSegment(Vector(-52.5, -22.5, 0), Vector(-52.5, -7.5, 0)), False)
sketch14.addGeometry(Part.LineSegment(Vector(-52.5, -7.5, 0), Vector(-37.5, -7.5, 0)), False)
sketch14.addGeometry(Part.LineSegment(Vector(-37.5, -7.5, 0), Vector(-37.5, -22.5, 0)), False)
sketch14.addGeometry(Part.LineSegment(Vector(-37.5, -22.5, 0), Vector(-52.5, -22.5, 0)), False)
sketch14.addConstraint(Sketcher.Constraint("Coincident", 0, 2, 1, 1))
sketch14.addConstraint(Sketcher.Constraint("Coincident", 1, 2, 2, 1))
sketch14.addConstraint(Sketcher.Constraint("Coincident", 2, 2, 3, 1))
sketch14.addConstraint(Sketcher.Constraint("Coincident", 3, 2, 0, 1))
sketch14.addConstraint(Sketcher.Constraint("Vertical", 0))
sketch14.addConstraint(Sketcher.Constraint("Horizontal", 1))
sketch14.addConstraint(Sketcher.Constraint("Vertical", 2))
sketch14.addConstraint(Sketcher.Constraint("Horizontal", 3))
sketch14.addConstraint(Sketcher.Constraint("Equal", 3, 0))
sketch14.addConstraint(Sketcher.Constraint("DistanceX", 1, 1, 1, 2, Q("15 mm")))
sketch14.addConstraint(Sketcher.Constraint("DistanceX", 0, 2, -1, 1, Q("52.5 mm")))
sketch14.addConstraint(Sketcher.Constraint("DistanceY", 0, 2, -1, 1, Q("7.5 mm")))
pocket5 = body.newObject("PartDesign::Pocket", "Pocket004")
pocket5.Profile = sketch14
pocket5.Type = "UpToFirst"
pocket5.Reversed = True

# Sketch on XZ plane
sketch15 = body.newObject("Sketcher::SketchObject", "Sketch014")
sketch15.AttachmentSupport = (doc.getObject("XZ_Plane"), [""])
sketch15.MapMode = "FlatFace"
sketch15.AttachmentOffset = App.Placement(Vector(0, 0, -82.3), App.Rotation())
sketch15.addGeometry(Part.LineSegment(Vector(37.5, 7.5, 0), Vector(37.5, 22.5, 0)), False)
sketch15.addGeometry(Part.LineSegment(Vector(37.5, 22.5, 0), Vector(52.5, 22.5, 0)), False)
sketch15.addGeometry(Part.LineSegment(Vector(52.5, 22.5, 0), Vector(52.5, 7.5, 0)), False)
sketch15.addGeometry(Part.LineSegment(Vector(52.5, 7.5, 0), Vector(37.5, 7.5, 0)), False)
sketch15.addConstraint(Sketcher.Constraint("Coincident", 0, 2, 1, 1))
sketch15.addConstraint(Sketcher.Constraint("Coincident", 1, 2, 2, 1))
sketch15.addConstraint(Sketcher.Constraint("Coincident", 2, 2, 3, 1))
sketch15.addConstraint(Sketcher.Constraint("Coincident", 3, 2, 0, 1))
sketch15.addConstraint(Sketcher.Constraint("Vertical", 0))
sketch15.addConstraint(Sketcher.Constraint("Horizontal", 1))
sketch15.addConstraint(Sketcher.Constraint("Vertical", 2))
sketch15.addConstraint(Sketcher.Constraint("Horizontal", 3))
sketch15.addConstraint(Sketcher.Constraint("Equal", 3, 0))
sketch15.addConstraint(Sketcher.Constraint("DistanceX", 1, 1, 1, 2, Q("15 mm")))
sketch15.addConstraint(Sketcher.Constraint("DistanceX", -1, 1, 0, 2, Q("37.5 mm")))
sketch15.addConstraint(Sketcher.Constraint("DistanceY", -1, 1, 0, 2, Q("22.5 mm")))
pocket6 = body.newObject("PartDesign::Pocket", "Pocket005")
pocket6.Profile = sketch15
pocket6.Type = "UpToFirst"
pocket6.Reversed = True

# Sketch on YZ plane
sketch16 = body.newObject("Sketcher::SketchObject", "Sketch015")
sketch16.AttachmentSupport = (doc.getObject("YZ_Plane"), [""])
sketch16.MapMode = "FlatFace"
sketch16.AttachmentOffset = App.Placement(Vector(0, 0, -37.5), App.Rotation())
sketch16.addGeometry(Part.Circle(Vector(67.3, -13.5, 0), Vector(0, 0, 1), 2.5), False)
sketch16.addConstraint(Sketcher.Constraint("Diameter", 0, Q("5 mm")))
sketch16.addConstraint(Sketcher.Constraint("DistanceX", -1, 1, 0, 3, Q("67.3 mm")))
sketch16.addConstraint(Sketcher.Constraint("DistanceY", 0, 3, -1, 1, Q("13.5 mm")))
pocket7 = body.newObject("PartDesign::Pocket", "Pocket006")
pocket7.Profile = sketch16
pocket7.Type = "TwoLengths"
pocket7.Length = 17.5
pocket7.Length2 = 5

# Sketch on YZ plane
sketch17 = body.newObject("Sketcher::SketchObject", "Sketch016")
sketch17.AttachmentSupport = (doc.getObject("YZ_Plane"), [""])
sketch17.MapMode = "FlatFace"
sketch17.AttachmentOffset = App.Placement(Vector(0, 0, 37.5), App.Rotation())
sketch17.addGeometry(Part.Circle(Vector(67.3, 13.5, 0), Vector(0, 0, 1), 2.5), False)
sketch17.addConstraint(Sketcher.Constraint("Diameter", 0, Q("5 mm")))
sketch17.addConstraint(Sketcher.Constraint("DistanceX", -1, 1, 0, 3, Q("67.3 mm")))
sketch17.addConstraint(Sketcher.Constraint("DistanceY", -1, 1, 0, 3, Q("13.5 mm")))
pocket8 = body.newObject("PartDesign::Pocket", "Pocket007")
pocket8.Profile = sketch17
pocket8.Type = "TwoLengths"
pocket8.Length = 17.5
pocket8.Length2 = 5
pocket8.Reversed = True

# Sketch on XZ plane
sketch18 = body.newObject("Sketcher::SketchObject", "Sketch017")
sketch18.AttachmentSupport = (doc.getObject("XZ_Plane"), [""])
sketch18.MapMode = "FlatFace"
sketch18.AttachmentOffset = App.Placement(Vector(0, 0, -67.3), App.Rotation())
sketch18.addGeometry(Part.LineSegment(Vector(45, -39.68627, 0), Vector(45, -7.5, 0)), False)
sketch18.addGeometry(Part.LineSegment(Vector(45, -7.5, 0), Vector(52.5, -7.5, 0)), False)
sketch18.addGeometry(Part.LineSegment(Vector(52.5, -7.5, 0), Vector(52.5, 22.5, 0)), False)
sketch18.addGeometry(Part.LineSegment(Vector(52.5, 22.5, 0), Vector(45, 22.5, 0)), False)
sketch18.addGeometry(Part.LineSegment(Vector(45, 22.5, 0), Vector(45, 39.68627, 0)), False)
sketch18.addGeometry(Part.ArcOfCircle(Part.Circle(Vector(0, 0, 0), Vector(0, 0, 1), 60), math.radians(-41.409622), math.radians(41.409622)), False)
sketch18.addGeometry(Part.LineSegment(Vector(-52.5, -22.5, 0), Vector(-45, -22.5, 0)), False)
sketch18.addGeometry(Part.LineSegment(Vector(-45, -22.5, 0), Vector(-45, -39.68627, 0)), False)
sketch18.addGeometry(Part.ArcOfCircle(Part.Circle(Vector(0, 0, 0), Vector(0, 0, 1), 60), math.radians(138.590378), math.radians(221.409622)), False)
sketch18.addGeometry(Part.LineSegment(Vector(-45, 39.68627, 0), Vector(-45, 7.5, 0)), False)
sketch18.addGeometry(Part.LineSegment(Vector(-45, 7.5, 0), Vector(-52.5, 7.5, 0)), False)
sketch18.addGeometry(Part.LineSegment(Vector(-52.5, 7.5, 0), Vector(-52.5, -22.5, 0)), False)
sketch18.addConstraint(Sketcher.Constraint("Coincident", 0, 2, 1, 1))
sketch18.addConstraint(Sketcher.Constraint("Coincident", 1, 2, 2, 1))
sketch18.addConstraint(Sketcher.Constraint("Coincident", 2, 2, 3, 1))
sketch18.addConstraint(Sketcher.Constraint("Coincident", 3, 2, 4, 1))
sketch18.addConstraint(Sketcher.Constraint("Coincident", 4, 2, 5, 2))
sketch18.addConstraint(Sketcher.Constraint("Coincident", 5, 1, 0, 1))
sketch18.addConstraint(Sketcher.Constraint("Coincident", 6, 2, 7, 1))
sketch18.addConstraint(Sketcher.Constraint("Coincident", 7, 2, 8, 2))
sketch18.addConstraint(Sketcher.Constraint("Coincident", 8, 1, 9, 1))
sketch18.addConstraint(Sketcher.Constraint("Coincident", 9, 2, 10, 1))
sketch18.addConstraint(Sketcher.Constraint("Coincident", 10, 2, 11, 1))
sketch18.addConstraint(Sketcher.Constraint("Coincident", 11, 2, 6, 1))
sketch18.addConstraint(Sketcher.Constraint("Vertical", 0))
sketch18.addConstraint(Sketcher.Constraint("Horizontal", 1))
sketch18.addConstraint(Sketcher.Constraint("Vertical", 2))
sketch18.addConstraint(Sketcher.Constraint("Horizontal", 3))
sketch18.addConstraint(Sketcher.Constraint("Vertical", 4))
sketch18.addConstraint(Sketcher.Constraint("Horizontal", 6))
sketch18.addConstraint(Sketcher.Constraint("Vertical", 7))
sketch18.addConstraint(Sketcher.Constraint("Vertical", 9))
sketch18.addConstraint(Sketcher.Constraint("Horizontal", 10))
sketch18.addConstraint(Sketcher.Constraint("Vertical", 11))
sketch18.addConstraint(Sketcher.Constraint("Coincident", 5, 3, -1, 1))
sketch18.addConstraint(Sketcher.Constraint("Coincident", 8, 3, -1, 1))
sketch18.addConstraint(Sketcher.Constraint("Equal", 5, 8))
sketch18.addConstraint(Sketcher.Constraint("Symmetric", 3, 2, 6, 2, -1, 1))
sketch18.addConstraint(Sketcher.Constraint("Symmetric", 0, 2, 9, 2, -1, 1))
sketch18.addConstraint(Sketcher.Constraint("Horizontal", 5, 1, 7, 2))
sketch18.addConstraint(Sketcher.Constraint("Equal", 3, 6))
sketch18.addConstraint(Sketcher.Constraint("Radius", 5, Q("60 mm")))
sketch18.addConstraint(Sketcher.Constraint("DistanceY", 2, 1, 2, 2, Q("30 mm")))
sketch18.addConstraint(Sketcher.Constraint("DistanceX", 1, 1, 1, 2, Q("7.5 mm")))
sketch18.addConstraint(Sketcher.Constraint("DistanceX", -1, 1, 0, 2, Q("45 mm")))
sketch18.addConstraint(Sketcher.Constraint("DistanceY", 6, 2, 0, 2, Q("15 mm")))
pocket9 = body.newObject("PartDesign::Pocket", "Pocket008")
pocket9.Profile = sketch18
pocket9.Length = 15

# Sketch on XZ plane
sketch19 = body.newObject("Sketcher::SketchObject", "Sketch018")
sketch19.AttachmentSupport = (doc.getObject("XZ_Plane"), [""])
sketch19.MapMode = "FlatFace"
sketch19.AttachmentOffset = App.Placement(Vector(0, 0, -67.3), App.Rotation())
sketch19.addGeometry(Part.Circle(Vector(-52.5, 15, 0), Vector(0, 0, 1), 2.5), False)
sketch19.addGeometry(Part.Circle(Vector(52.5, -15, 0), Vector(0, 0, 1), 2.5), False)
sketch19.addConstraint(Sketcher.Constraint("Equal", 0, 1))
sketch19.addConstraint(Sketcher.Constraint("Symmetric", 0, 3, 1, 3, -1, 1))
sketch19.addConstraint(Sketcher.Constraint("Diameter", 0, Q("5 mm")))
sketch19.addConstraint(Sketcher.Constraint("DistanceY", -1, 1, 0, 3, Q("15 mm")))
sketch19.addConstraint(Sketcher.Constraint("DistanceX", 0, 3, 1, 3, Q("105 mm")))
pocket10 = body.newObject("PartDesign::Pocket", "Pocket009")
pocket10.Profile = sketch19
pocket10.Length = 2.5
pocket10.Reversed = True

# Sketch on XZ plane
sketch20 = body.newObject("Sketcher::SketchObject", "Sketch019")
sketch20.AttachmentSupport = (doc.getObject("XZ_Plane"), [""])
sketch20.MapMode = "FlatFace"
sketch20.addGeometry(Part.Circle(Vector(0, 0, 0), Vector(0, 0, 1), 5), False)
sketch20.addConstraint(Sketcher.Constraint("Coincident", 0, 3, -1, 1))
sketch20.addConstraint(Sketcher.Constraint("Diameter", 0, Q("10 mm")))
pocket11 = body.newObject("PartDesign::Pocket", "Pocket010")
pocket11.Profile = sketch20
pocket11.Type = "UpToFirst"

doc.recompute()
